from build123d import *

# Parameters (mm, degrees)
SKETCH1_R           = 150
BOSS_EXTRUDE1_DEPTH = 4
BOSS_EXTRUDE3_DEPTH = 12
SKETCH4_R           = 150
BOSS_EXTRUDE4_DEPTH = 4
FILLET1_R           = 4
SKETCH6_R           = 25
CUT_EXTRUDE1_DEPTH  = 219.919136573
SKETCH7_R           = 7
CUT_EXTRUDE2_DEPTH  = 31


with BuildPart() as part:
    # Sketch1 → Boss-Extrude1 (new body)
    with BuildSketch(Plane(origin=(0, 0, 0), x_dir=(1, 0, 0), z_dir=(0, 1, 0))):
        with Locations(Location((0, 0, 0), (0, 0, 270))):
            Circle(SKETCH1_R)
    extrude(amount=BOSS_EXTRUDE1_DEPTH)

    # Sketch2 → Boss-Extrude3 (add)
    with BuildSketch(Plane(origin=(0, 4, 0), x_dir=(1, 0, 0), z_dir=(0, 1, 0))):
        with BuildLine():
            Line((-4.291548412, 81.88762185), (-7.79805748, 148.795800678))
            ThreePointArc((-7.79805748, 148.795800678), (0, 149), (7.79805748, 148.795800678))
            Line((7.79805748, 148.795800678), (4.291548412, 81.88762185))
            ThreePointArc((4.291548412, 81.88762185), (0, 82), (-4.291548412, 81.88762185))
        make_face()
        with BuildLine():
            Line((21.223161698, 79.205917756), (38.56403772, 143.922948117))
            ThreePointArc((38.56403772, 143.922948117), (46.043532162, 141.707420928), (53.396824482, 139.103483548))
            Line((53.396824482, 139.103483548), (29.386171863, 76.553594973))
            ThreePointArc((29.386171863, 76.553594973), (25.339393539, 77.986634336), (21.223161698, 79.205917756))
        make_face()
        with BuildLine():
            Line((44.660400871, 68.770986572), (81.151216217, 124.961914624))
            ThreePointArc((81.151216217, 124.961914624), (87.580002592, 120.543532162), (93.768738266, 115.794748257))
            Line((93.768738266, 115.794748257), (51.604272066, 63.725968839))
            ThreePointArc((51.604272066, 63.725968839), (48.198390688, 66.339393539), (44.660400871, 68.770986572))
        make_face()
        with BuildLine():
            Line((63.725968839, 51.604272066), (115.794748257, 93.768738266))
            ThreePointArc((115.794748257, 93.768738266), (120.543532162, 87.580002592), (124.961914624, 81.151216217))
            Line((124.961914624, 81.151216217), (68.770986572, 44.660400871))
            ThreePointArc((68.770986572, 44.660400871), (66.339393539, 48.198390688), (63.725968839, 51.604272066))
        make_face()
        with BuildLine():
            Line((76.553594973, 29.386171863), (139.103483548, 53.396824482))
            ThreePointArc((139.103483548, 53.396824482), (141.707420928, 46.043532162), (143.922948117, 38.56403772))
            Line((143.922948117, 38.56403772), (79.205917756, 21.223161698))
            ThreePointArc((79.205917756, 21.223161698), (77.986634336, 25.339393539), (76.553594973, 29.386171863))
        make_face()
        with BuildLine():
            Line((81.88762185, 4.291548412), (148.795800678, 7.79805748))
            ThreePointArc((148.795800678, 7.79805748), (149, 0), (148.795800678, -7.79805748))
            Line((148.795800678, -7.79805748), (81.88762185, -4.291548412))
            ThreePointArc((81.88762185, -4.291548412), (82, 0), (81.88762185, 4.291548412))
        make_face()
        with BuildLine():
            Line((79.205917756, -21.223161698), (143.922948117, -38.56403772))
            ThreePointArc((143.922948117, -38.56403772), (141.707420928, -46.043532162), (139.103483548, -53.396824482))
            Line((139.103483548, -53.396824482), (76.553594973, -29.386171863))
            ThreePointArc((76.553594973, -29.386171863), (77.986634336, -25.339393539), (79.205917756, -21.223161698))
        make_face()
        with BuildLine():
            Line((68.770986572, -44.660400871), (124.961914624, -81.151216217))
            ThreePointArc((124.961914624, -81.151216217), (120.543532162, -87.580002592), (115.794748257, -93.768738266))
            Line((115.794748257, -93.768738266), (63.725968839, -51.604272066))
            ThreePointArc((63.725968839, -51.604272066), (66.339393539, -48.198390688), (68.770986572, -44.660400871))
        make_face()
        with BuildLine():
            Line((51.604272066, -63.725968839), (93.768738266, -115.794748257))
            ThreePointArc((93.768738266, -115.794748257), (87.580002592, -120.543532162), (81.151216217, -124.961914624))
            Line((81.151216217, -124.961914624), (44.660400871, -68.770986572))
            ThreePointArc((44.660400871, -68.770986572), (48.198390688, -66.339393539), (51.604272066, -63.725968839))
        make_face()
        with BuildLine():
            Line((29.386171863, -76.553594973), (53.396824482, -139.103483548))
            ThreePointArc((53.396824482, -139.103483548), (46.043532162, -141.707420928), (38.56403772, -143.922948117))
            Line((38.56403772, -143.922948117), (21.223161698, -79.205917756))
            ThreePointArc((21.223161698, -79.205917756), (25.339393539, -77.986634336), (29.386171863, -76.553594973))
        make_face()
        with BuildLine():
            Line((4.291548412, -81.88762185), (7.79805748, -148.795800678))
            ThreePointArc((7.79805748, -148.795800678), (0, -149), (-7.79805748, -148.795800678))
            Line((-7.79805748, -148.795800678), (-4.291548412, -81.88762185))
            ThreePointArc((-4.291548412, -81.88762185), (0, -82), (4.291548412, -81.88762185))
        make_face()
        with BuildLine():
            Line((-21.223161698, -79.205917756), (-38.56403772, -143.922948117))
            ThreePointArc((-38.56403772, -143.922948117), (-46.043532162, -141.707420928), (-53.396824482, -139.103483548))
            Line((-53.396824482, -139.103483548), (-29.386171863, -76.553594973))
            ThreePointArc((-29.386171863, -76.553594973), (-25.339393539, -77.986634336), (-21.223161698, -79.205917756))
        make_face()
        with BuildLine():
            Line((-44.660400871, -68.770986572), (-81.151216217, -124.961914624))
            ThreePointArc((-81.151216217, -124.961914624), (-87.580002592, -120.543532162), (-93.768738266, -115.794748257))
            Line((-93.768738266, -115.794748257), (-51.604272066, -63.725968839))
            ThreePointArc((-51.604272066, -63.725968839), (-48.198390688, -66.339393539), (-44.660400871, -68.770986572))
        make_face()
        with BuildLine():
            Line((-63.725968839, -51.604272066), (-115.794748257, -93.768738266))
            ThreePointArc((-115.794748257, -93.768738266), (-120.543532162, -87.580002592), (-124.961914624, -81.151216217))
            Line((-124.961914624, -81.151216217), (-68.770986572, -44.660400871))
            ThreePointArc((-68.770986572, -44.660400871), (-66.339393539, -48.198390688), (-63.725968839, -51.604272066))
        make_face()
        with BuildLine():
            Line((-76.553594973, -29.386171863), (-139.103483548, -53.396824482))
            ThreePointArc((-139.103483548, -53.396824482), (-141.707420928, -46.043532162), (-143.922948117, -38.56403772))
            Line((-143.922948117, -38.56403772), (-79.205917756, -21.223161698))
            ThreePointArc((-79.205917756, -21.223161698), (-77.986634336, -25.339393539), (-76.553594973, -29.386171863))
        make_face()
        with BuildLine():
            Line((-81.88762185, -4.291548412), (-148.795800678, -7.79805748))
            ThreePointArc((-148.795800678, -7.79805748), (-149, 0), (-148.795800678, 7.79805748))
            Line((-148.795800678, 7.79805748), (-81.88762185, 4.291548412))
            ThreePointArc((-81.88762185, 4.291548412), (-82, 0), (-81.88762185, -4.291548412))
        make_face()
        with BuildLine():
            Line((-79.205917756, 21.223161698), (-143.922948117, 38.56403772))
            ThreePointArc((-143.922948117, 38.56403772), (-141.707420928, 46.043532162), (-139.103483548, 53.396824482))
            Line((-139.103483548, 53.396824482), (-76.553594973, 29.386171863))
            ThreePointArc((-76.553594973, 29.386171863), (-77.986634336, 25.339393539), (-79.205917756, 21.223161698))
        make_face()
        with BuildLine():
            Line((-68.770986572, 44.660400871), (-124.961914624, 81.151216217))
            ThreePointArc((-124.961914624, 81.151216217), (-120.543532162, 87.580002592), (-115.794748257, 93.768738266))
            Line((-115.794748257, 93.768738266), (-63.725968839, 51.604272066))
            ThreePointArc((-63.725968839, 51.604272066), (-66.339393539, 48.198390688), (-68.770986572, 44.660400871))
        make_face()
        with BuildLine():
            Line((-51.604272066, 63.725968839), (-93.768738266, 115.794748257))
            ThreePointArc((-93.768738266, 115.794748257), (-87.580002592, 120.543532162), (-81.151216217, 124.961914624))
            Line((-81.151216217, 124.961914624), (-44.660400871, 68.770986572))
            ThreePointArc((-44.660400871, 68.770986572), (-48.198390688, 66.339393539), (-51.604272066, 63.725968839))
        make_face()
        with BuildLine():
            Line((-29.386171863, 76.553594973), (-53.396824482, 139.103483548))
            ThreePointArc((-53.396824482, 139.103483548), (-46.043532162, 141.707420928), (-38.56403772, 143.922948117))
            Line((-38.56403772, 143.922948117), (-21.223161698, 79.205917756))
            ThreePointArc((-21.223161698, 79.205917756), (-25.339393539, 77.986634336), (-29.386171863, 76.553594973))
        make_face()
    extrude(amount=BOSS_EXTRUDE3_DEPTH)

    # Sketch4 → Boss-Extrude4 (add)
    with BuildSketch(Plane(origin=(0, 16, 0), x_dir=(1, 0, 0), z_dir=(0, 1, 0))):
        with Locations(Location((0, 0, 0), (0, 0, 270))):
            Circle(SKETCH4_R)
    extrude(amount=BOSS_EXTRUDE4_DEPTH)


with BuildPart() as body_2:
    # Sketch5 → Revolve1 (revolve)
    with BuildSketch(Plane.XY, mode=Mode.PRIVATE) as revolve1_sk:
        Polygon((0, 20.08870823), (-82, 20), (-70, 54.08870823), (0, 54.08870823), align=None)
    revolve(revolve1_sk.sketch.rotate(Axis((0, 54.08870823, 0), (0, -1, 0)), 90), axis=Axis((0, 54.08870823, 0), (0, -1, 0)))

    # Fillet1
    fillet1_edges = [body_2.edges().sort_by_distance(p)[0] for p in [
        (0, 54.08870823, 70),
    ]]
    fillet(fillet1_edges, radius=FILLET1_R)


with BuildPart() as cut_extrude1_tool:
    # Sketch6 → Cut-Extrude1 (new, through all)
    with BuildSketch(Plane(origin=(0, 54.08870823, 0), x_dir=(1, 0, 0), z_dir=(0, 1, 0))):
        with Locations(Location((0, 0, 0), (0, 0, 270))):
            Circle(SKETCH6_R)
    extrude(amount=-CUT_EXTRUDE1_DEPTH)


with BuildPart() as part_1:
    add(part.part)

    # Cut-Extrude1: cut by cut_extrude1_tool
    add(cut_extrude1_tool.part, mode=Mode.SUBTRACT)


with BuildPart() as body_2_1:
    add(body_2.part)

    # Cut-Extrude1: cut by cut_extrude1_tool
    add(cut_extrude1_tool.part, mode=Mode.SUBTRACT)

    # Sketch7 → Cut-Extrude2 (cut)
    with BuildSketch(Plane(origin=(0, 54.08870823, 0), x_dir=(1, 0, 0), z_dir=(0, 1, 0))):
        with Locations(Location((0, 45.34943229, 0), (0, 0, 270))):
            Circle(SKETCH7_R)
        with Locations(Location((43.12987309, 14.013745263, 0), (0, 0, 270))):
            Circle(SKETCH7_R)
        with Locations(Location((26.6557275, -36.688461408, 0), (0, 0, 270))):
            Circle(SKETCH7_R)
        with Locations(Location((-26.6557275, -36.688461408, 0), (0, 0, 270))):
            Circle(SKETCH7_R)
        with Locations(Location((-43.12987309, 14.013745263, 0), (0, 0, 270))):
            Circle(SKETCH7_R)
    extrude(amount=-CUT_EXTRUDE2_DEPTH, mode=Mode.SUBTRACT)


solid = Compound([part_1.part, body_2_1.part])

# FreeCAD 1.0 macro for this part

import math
import FreeCAD as App
import Part
import Sketcher
from FreeCAD import Vector
Q = App.Units.Quantity


def edges_at(feature, points):
    """Names of the edges that pass closest to the given points."""
    edges = feature.Shape.Edges
    near = lambda p: min(range(len(edges)), key=lambda i: edges[i].distToShape(Part.Vertex(*p))[0])
    return sorted({f"Edge{near(p) + 1}" for p in points})


def add_polygon(sketch, points):
    """Adds a closed chain of lines whose ends are joined by coincident constraints."""
    first, n = sketch.GeometryCount, len(points)
    for a, b in zip(points, points[1:] + points[:1]):
        sketch.addGeometry(Part.LineSegment(App.Vector(*a, 0), App.Vector(*b, 0)), False)
    for i in range(n):
        sketch.addConstraint(Sketcher.Constraint("Coincident", first + i, 2, first + (i + 1) % n, 1))

doc = App.newDocument("Part")
params = doc.addObject("Spreadsheet::Sheet", "Params")
for row, (alias, value) in enumerate([
    ("sketch1_diameter", "300 mm"),
    ("pad1_length", "4 mm"),
    ("sketch2_radius", "82 mm"),
    ("sketch2_radius2", "149 mm"),
    ("pad2_length", "12 mm"),
    ("sketch3_diameter", "300 mm"),
    ("pad3_length", "4 mm"),
    ("sketch4_width", "70 mm"),
    ("sketch4_height", "34 mm"),
    ("revolution_angle", "360 deg"),
    ("fillet_radius", "4 mm"),
    ("sketch5_diameter", "50 mm"),
    ("pad4_length", "219.919137 mm"),
    ("sketch6_diameter", "14 mm"),
    ("pocket1_length", "31 mm"),
], start=1):
    params.set(f"A{row}", alias)
    params.set(f"B{row}", "=" + value)
    params.setAlias(f"B{row}", alias)

body = doc.addObject("PartDesign::Body", "Body")

sketch1 = body.newObject("Sketcher::SketchObject", "Sketch")
sketch1.AttachmentSupport = (doc.getObject("XZ_Plane"), [""])
sketch1.MapMode = "FlatFace"
sketch1.addGeometry(Part.Circle(Vector(0, 0, 0), Vector(0, 0, 1), 150), False)
sketch1.addConstraint(Sketcher.Constraint("Coincident", 0, 3, -1, 1))
sketch1.addConstraint(Sketcher.Constraint("Diameter", 0, Q("300 mm")))
sketch1.setExpression("Constraints[1]", "Params.sketch1_diameter")
pad1 = body.newObject("PartDesign::Pad", "Pad")
pad1.Profile = sketch1
pad1.setExpression("Length", "Params.pad1_length")
pad1.Reversed = True

sketch2 = body.newObject("Sketcher::SketchObject", "Sketch001")
sketch2.AttachmentSupport = (doc.getObject("XZ_Plane"), [""])
sketch2.MapMode = "FlatFace"
sketch2.AttachmentOffset = App.Placement(Vector(0, 0, -4), App.Rotation())
sketch2.addGeometry(Part.LineSegment(Vector(-8, -149, 0), Vector(-4, -82, 0)), False)
sketch2.addGeometry(Part.ArcOfCircle(Part.Circle(Vector(0, 0, 0), Vector(0, 0, 1), 82), math.radians(-93), math.radians(-87)), False)
sketch2.addGeometry(Part.LineSegment(Vector(4, -82, 0), Vector(8, -149, 0)), False)
sketch2.addGeometry(Part.ArcOfCircle(Part.Circle(Vector(0, 0, 0), Vector(0, 0, 1), 149), math.radians(-93), math.radians(-87)), False)
sketch2.addGeometry(Part.LineSegment(Vector(39, -144, 0), Vector(21, -79, 0)), False)
sketch2.addGeometry(Part.ArcOfCircle(Part.Circle(Vector(0, 0, 0), Vector(0, 0, 1), 82), math.radians(-75), math.radians(-69)), False)
sketch2.addGeometry(Part.LineSegment(Vector(29, -77, 0), Vector(53, -139, 0)), False)
sketch2.addGeometry(Part.ArcOfCircle(Part.Circle(Vector(0, 0, 0), Vector(0, 0, 1), 149), math.radians(-75), math.radians(-69)), False)
sketch2.addGeometry(Part.LineSegment(Vector(81, -125, 0), Vector(45, -69, 0)), False)
sketch2.addGeometry(Part.ArcOfCircle(Part.Circle(Vector(0, 0, 0), Vector(0, 0, 1), 82), math.radians(-57), math.radians(-51)), False)
sketch2.addGeometry(Part.LineSegment(Vector(52, -64, 0), Vector(94, -116, 0)), False)
sketch2.addGeometry(Part.ArcOfCircle(Part.Circle(Vector(0, 0, 0), Vector(0, 0, 1), 149), math.radians(-57), math.radians(-51)), False)
sketch2.addGeometry(Part.LineSegment(Vector(116, -94, 0), Vector(64, -52, 0)), False)
sketch2.addGeometry(Part.ArcOfCircle(Part.Circle(Vector(0, 0, 0), Vector(0, 0, 1), 82), math.radians(-39), math.radians(-33)), False)
sketch2.addGeometry(Part.LineSegment(Vector(69, -45, 0), Vector(125, -81, 0)), False)
sketch2.addGeometry(Part.ArcOfCircle(Part.Circle(Vector(0, 0, 0), Vector(0, 0, 1), 149), math.radians(-39), math.radians(-33)), False)
sketch2.addGeometry(Part.LineSegment(Vector(139, -53, 0), Vector(77, -29, 0)), False)
sketch2.addGeometry(Part.ArcOfCircle(Part.Circle(Vector(0, 0, 0), Vector(0, 0, 1), 82), math.radians(-21), math.radians(-15)), False)
sketch2.addGeometry(Part.LineSegment(Vector(79, -21, 0), Vector(144, -39, 0)), False)
sketch2.addGeometry(Part.ArcOfCircle(Part.Circle(Vector(0, 0, 0), Vector(0, 0, 1), 149), math.radians(-21), math.radians(-15)), False)
sketch2.addGeometry(Part.LineSegment(Vector(149, -8, 0), Vector(82, -4, 0)), False)
sketch2.addGeometry(Part.ArcOfCircle(Part.Circle(Vector(0, 0, 0), Vector(0, 0, 1), 82), math.radians(-3), math.radians(3)), False)
sketch2.addGeometry(Part.LineSegment(Vector(82, 4, 0), Vector(149, 8, 0)), False)
sketch2.addGeometry(Part.ArcOfCircle(Part.Circle(Vector(0, 0, 0), Vector(0, 0, 1), 149), math.radians(-3), math.radians(3)), False)
sketch2.addGeometry(Part.LineSegment(Vector(144, 39, 0), Vector(79, 21, 0)), False)
sketch2.addGeometry(Part.ArcOfCircle(Part.Circle(Vector(0, 0, 0), Vector(0, 0, 1), 82), math.radians(15), math.radians(21)), False)
sketch2.addGeometry(Part.LineSegment(Vector(77, 29, 0), Vector(139, 53, 0)), False)
sketch2.addGeometry(Part.ArcOfCircle(Part.Circle(Vector(0, 0, 0), Vector(0, 0, 1), 149), math.radians(15), math.radians(21)), False)
sketch2.addGeometry(Part.LineSegment(Vector(125, 81, 0), Vector(69, 45, 0)), False)
sketch2.addGeometry(Part.ArcOfCircle(Part.Circle(Vector(0, 0, 0), Vector(0, 0, 1), 82), math.radians(33), math.radians(39)), False)
sketch2.addGeometry(Part.LineSegment(Vector(64, 52, 0), Vector(116, 94, 0)), False)
sketch2.addGeometry(Part.ArcOfCircle(Part.Circle(Vector(0, 0, 0), Vector(0, 0, 1), 149), math.radians(33), math.radians(39)), False)
sketch2.addGeometry(Part.LineSegment(Vector(94, 116, 0), Vector(52, 64, 0)), False)
sketch2.addGeometry(Part.ArcOfCircle(Part.Circle(Vector(0, 0, 0), Vector(0, 0, 1), 82), math.radians(51), math.radians(57)), False)
sketch2.addGeometry(Part.LineSegment(Vector(45, 69, 0), Vector(81, 125, 0)), False)
sketch2.addGeometry(Part.ArcOfCircle(Part.Circle(Vector(0, 0, 0), Vector(0, 0, 1), 149), math.radians(51), math.radians(57)), False)
sketch2.addGeometry(Part.LineSegment(Vector(53, 139, 0), Vector(29, 77, 0)), False)
sketch2.addGeometry(Part.ArcOfCircle(Part.Circle(Vector(0, 0, 0), Vector(0, 0, 1), 82), math.radians(69), math.radians(75)), False)
sketch2.addGeometry(Part.LineSegment(Vector(21, 79, 0), Vector(39, 144, 0)), False)
sketch2.addGeometry(Part.ArcOfCircle(Part.Circle(Vector(0, 0, 0), Vector(0, 0, 1), 149), math.radians(69), math.radians(75)), False)
sketch2.addGeometry(Part.LineSegment(Vector(8, 149, 0), Vector(4, 82, 0)), False)
sketch2.addGeometry(Part.ArcOfCircle(Part.Circle(Vector(0, 0, 0), Vector(0, 0, 1), 82), math.radians(87), math.radians(93)), False)
sketch2.addGeometry(Part.LineSegment(Vector(-4, 82, 0), Vector(-8, 149, 0)), False)
sketch2.addGeometry(Part.ArcOfCircle(Part.Circle(Vector(0, 0, 0), Vector(0, 0, 1), 149), math.radians(87), math.radians(93)), False)
sketch2.addGeometry(Part.LineSegment(Vector(-39, 144, 0), Vector(-21, 79, 0)), False)
sketch2.addGeometry(Part.ArcOfCircle(Part.Circle(Vector(0, 0, 0), Vector(0, 0, 1), 82), math.radians(105), math.radians(111)), False)
sketch2.addGeometry(Part.LineSegment(Vector(-29, 77, 0), Vector(-53, 139, 0)), False)
sketch2.addGeometry(Part.ArcOfCircle(Part.Circle(Vector(0, 0, 0), Vector(0, 0, 1), 149), math.radians(105), math.radians(111)), False)
sketch2.addGeometry(Part.LineSegment(Vector(-81, 125, 0), Vector(-45, 69, 0)), False)
sketch2.addGeometry(Part.ArcOfCircle(Part.Circle(Vector(0, 0, 0), Vector(0, 0, 1), 82), math.radians(123), math.radians(129)), False)
sketch2.addGeometry(Part.LineSegment(Vector(-52, 64, 0), Vector(-94, 116, 0)), False)
sketch2.addGeometry(Part.ArcOfCircle(Part.Circle(Vector(0, 0, 0), Vector(0, 0, 1), 149), math.radians(123), math.radians(129)), False)
sketch2.addGeometry(Part.LineSegment(Vector(-116, 94, 0), Vector(-64, 52, 0)), False)
sketch2.addGeometry(Part.ArcOfCircle(Part.Circle(Vector(0, 0, 0), Vector(0, 0, 1), 82), math.radians(141), math.radians(147)), False)
sketch2.addGeometry(Part.LineSegment(Vector(-69, 45, 0), Vector(-125, 81, 0)), False)
sketch2.addGeometry(Part.ArcOfCircle(Part.Circle(Vector(0, 0, 0), Vector(0, 0, 1), 149), math.radians(141), math.radians(147)), False)
sketch2.addGeometry(Part.LineSegment(Vector(-139, 53, 0), Vector(-77, 29, 0)), False)
sketch2.addGeometry(Part.ArcOfCircle(Part.Circle(Vector(0, 0, 0), Vector(0, 0, 1), 82), math.radians(159), math.radians(165)), False)
sketch2.addGeometry(Part.LineSegment(Vector(-79, 21, 0), Vector(-144, 39, 0)), False)
sketch2.addGeometry(Part.ArcOfCircle(Part.Circle(Vector(0, 0, 0), Vector(0, 0, 1), 149), math.radians(159), math.radians(165)), False)
sketch2.addGeometry(Part.LineSegment(Vector(-149, 8, 0), Vector(-82, 4, 0)), False)
sketch2.addGeometry(Part.ArcOfCircle(Part.Circle(Vector(0, 0, 0), Vector(0, 0, 1), 82), math.radians(177), math.radians(183)), False)
sketch2.addGeometry(Part.LineSegment(Vector(-82, -4, 0), Vector(-149, -8, 0)), False)
sketch2.addGeometry(Part.ArcOfCircle(Part.Circle(Vector(0, 0, 0), Vector(0, 0, 1), 149), math.radians(177), math.radians(183)), False)
sketch2.addGeometry(Part.LineSegment(Vector(-144, -39, 0), Vector(-79, -21, 0)), False)
sketch2.addGeometry(Part.ArcOfCircle(Part.Circle(Vector(0, 0, 0), Vector(0, 0, 1), 82), math.radians(-165), math.radians(-159)), False)
sketch2.addGeometry(Part.LineSegment(Vector(-77, -29, 0), Vector(-139, -53, 0)), False)
sketch2.addGeometry(Part.ArcOfCircle(Part.Circle(Vector(0, 0, 0), Vector(0, 0, 1), 149), math.radians(-165), math.radians(-159)), False)
sketch2.addGeometry(Part.LineSegment(Vector(-125, -81, 0), Vector(-69, -45, 0)), False)
sketch2.addGeometry(Part.ArcOfCircle(Part.Circle(Vector(0, 0, 0), Vector(0, 0, 1), 82), math.radians(-147), math.radians(-141)), False)
sketch2.addGeometry(Part.LineSegment(Vector(-64, -52, 0), Vector(-116, -94, 0)), False)
sketch2.addGeometry(Part.ArcOfCircle(Part.Circle(Vector(0, 0, 0), Vector(0, 0, 1), 149), math.radians(-147), math.radians(-141)), False)
sketch2.addGeometry(Part.LineSegment(Vector(-94, -116, 0), Vector(-52, -64, 0)), False)
sketch2.addGeometry(Part.ArcOfCircle(Part.Circle(Vector(0, 0, 0), Vector(0, 0, 1), 82), math.radians(-129), math.radians(-123)), False)
sketch2.addGeometry(Part.LineSegment(Vector(-45, -69, 0), Vector(-81, -125, 0)), False)
sketch2.addGeometry(Part.ArcOfCircle(Part.Circle(Vector(0, 0, 0), Vector(0, 0, 1), 149), math.radians(-129), math.radians(-123)), False)
sketch2.addGeometry(Part.LineSegment(Vector(-53, -139, 0), Vector(-29, -77, 0)), False)
sketch2.addGeometry(Part.ArcOfCircle(Part.Circle(Vector(0, 0, 0), Vector(0, 0, 1), 82), math.radians(-111), math.radians(-105)), False)
sketch2.addGeometry(Part.LineSegment(Vector(-21, -79, 0), Vector(-39, -144, 0)), False)
sketch2.addGeometry(Part.ArcOfCircle(Part.Circle(Vector(0, 0, 0), Vector(0, 0, 1), 149), math.radians(-111), math.radians(-105)), False)
sketch2.addConstraint(Sketcher.Constraint("Coincident", 0, 2, 1, 1))
sketch2.addConstraint(Sketcher.Constraint("Coincident", 1, 2, 2, 1))
sketch2.addConstraint(Sketcher.Constraint("Coincident", 2, 2, 3, 2))
sketch2.addConstraint(Sketcher.Constraint("Coincident", 3, 1, 0, 1))
sketch2.addConstraint(Sketcher.Constraint("Coincident", 4, 2, 5, 1))
sketch2.addConstraint(Sketcher.Constraint("Coincident", 5, 2, 6, 1))
sketch2.addConstraint(Sketcher.Constraint("Coincident", 6, 2, 7, 2))
sketch2.addConstraint(Sketcher.Constraint("Coincident", 7, 1, 4, 1))
sketch2.addConstraint(Sketcher.Constraint("Coincident", 8, 2, 9, 1))
sketch2.addConstraint(Sketcher.Constraint("Coincident", 9, 2, 10, 1))
sketch2.addConstraint(Sketcher.Constraint("Coincident", 10, 2, 11, 2))
sketch2.addConstraint(Sketcher.Constraint("Coincident", 11, 1, 8, 1))
sketch2.addConstraint(Sketcher.Constraint("Coincident", 12, 2, 13, 1))
sketch2.addConstraint(Sketcher.Constraint("Coincident", 13, 2, 14, 1))
sketch2.addConstraint(Sketcher.Constraint("Coincident", 14, 2, 15, 2))
sketch2.addConstraint(Sketcher.Constraint("Coincident", 15, 1, 12, 1))
sketch2.addConstraint(Sketcher.Constraint("Coincident", 16, 2, 17, 1))
sketch2.addConstraint(Sketcher.Constraint("Coincident", 17, 2, 18, 1))
sketch2.addConstraint(Sketcher.Constraint("Coincident", 18, 2, 19, 2))
sketch2.addConstraint(Sketcher.Constraint("Coincident", 19, 1, 16, 1))
sketch2.addConstraint(Sketcher.Constraint("Coincident", 20, 2, 21, 1))
sketch2.addConstraint(Sketcher.Constraint("Coincident", 21, 2, 22, 1))
sketch2.addConstraint(Sketcher.Constraint("Coincident", 22, 2, 23, 2))
sketch2.addConstraint(Sketcher.Constraint("Coincident", 23, 1, 20, 1))
sketch2.addConstraint(Sketcher.Constraint("Coincident", 24, 2, 25, 1))
sketch2.addConstraint(Sketcher.Constraint("Coincident", 25, 2, 26, 1))
sketch2.addConstraint(Sketcher.Constraint("Coincident", 26, 2, 27, 2))
sketch2.addConstraint(Sketcher.Constraint("Coincident", 27, 1, 24, 1))
sketch2.addConstraint(Sketcher.Constraint("Coincident", 28, 2, 29, 1))
sketch2.addConstraint(Sketcher.Constraint("Coincident", 29, 2, 30, 1))
sketch2.addConstraint(Sketcher.Constraint("Coincident", 30, 2, 31, 2))
sketch2.addConstraint(Sketcher.Constraint("Coincident", 31, 1, 28, 1))
sketch2.addConstraint(Sketcher.Constraint("Coincident", 32, 2, 33, 1))
sketch2.addConstraint(Sketcher.Constraint("Coincident", 33, 2, 34, 1))
sketch2.addConstraint(Sketcher.Constraint("Coincident", 34, 2, 35, 2))
sketch2.addConstraint(Sketcher.Constraint("Coincident", 35, 1, 32, 1))
sketch2.addConstraint(Sketcher.Constraint("Coincident", 36, 2, 37, 1))
sketch2.addConstraint(Sketcher.Constraint("Coincident", 37, 2, 38, 1))
sketch2.addConstraint(Sketcher.Constraint("Coincident", 38, 2, 39, 2))
sketch2.addConstraint(Sketcher.Constraint("Coincident", 39, 1, 36, 1))
sketch2.addConstraint(Sketcher.Constraint("Coincident", 40, 2, 41, 1))
sketch2.addConstraint(Sketcher.Constraint("Coincident", 41, 2, 42, 1))
sketch2.addConstraint(Sketcher.Constraint("Coincident", 42, 2, 43, 2))
sketch2.addConstraint(Sketcher.Constraint("Coincident", 43, 1, 40, 1))
sketch2.addConstraint(Sketcher.Constraint("Coincident", 44, 2, 45, 1))
sketch2.addConstraint(Sketcher.Constraint("Coincident", 45, 2, 46, 1))
sketch2.addConstraint(Sketcher.Constraint("Coincident", 46, 2, 47, 2))
sketch2.addConstraint(Sketcher.Constraint("Coincident", 47, 1, 44, 1))
sketch2.addConstraint(Sketcher.Constraint("Coincident", 48, 2, 49, 1))
sketch2.addConstraint(Sketcher.Constraint("Coincident", 49, 2, 50, 1))
sketch2.addConstraint(Sketcher.Constraint("Coincident", 50, 2, 51, 2))
sketch2.addConstraint(Sketcher.Constraint("Coincident", 51, 1, 48, 1))
sketch2.addConstraint(Sketcher.Constraint("Coincident", 52, 2, 53, 1))
sketch2.addConstraint(Sketcher.Constraint("Coincident", 53, 2, 54, 1))
sketch2.addConstraint(Sketcher.Constraint("Coincident", 54, 2, 55, 2))
sketch2.addConstraint(Sketcher.Constraint("Coincident", 55, 1, 52, 1))
sketch2.addConstraint(Sketcher.Constraint("Coincident", 56, 2, 57, 1))
sketch2.addConstraint(Sketcher.Constraint("Coincident", 57, 2, 58, 1))
sketch2.addConstraint(Sketcher.Constraint("Coincident", 58, 2, 59, 2))
sketch2.addConstraint(Sketcher.Constraint("Coincident", 59, 1, 56, 1))
sketch2.addConstraint(Sketcher.Constraint("Coincident", 60, 2, 61, 1))
sketch2.addConstraint(Sketcher.Constraint("Coincident", 61, 2, 62, 1))
sketch2.addConstraint(Sketcher.Constraint("Coincident", 62, 2, 63, 2))
sketch2.addConstraint(Sketcher.Constraint("Coincident", 63, 1, 60, 1))
sketch2.addConstraint(Sketcher.Constraint("Coincident", 64, 2, 65, 1))
sketch2.addConstraint(Sketcher.Constraint("Coincident", 65, 2, 66, 1))
sketch2.addConstraint(Sketcher.Constraint("Coincident", 66, 2, 67, 2))
sketch2.addConstraint(Sketcher.Constraint("Coincident", 67, 1, 64, 1))
sketch2.addConstraint(Sketcher.Constraint("Coincident", 68, 2, 69, 1))
sketch2.addConstraint(Sketcher.Constraint("Coincident", 69, 2, 70, 1))
sketch2.addConstraint(Sketcher.Constraint("Coincident", 70, 2, 71, 2))
sketch2.addConstraint(Sketcher.Constraint("Coincident", 71, 1, 68, 1))
sketch2.addConstraint(Sketcher.Constraint("Coincident", 72, 2, 73, 1))
sketch2.addConstraint(Sketcher.Constraint("Coincident", 73, 2, 74, 1))
sketch2.addConstraint(Sketcher.Constraint("Coincident", 74, 2, 75, 2))
sketch2.addConstraint(Sketcher.Constraint("Coincident", 75, 1, 72, 1))
sketch2.addConstraint(Sketcher.Constraint("Coincident", 76, 2, 77, 1))
sketch2.addConstraint(Sketcher.Constraint("Coincident", 77, 2, 78, 1))
sketch2.addConstraint(Sketcher.Constraint("Coincident", 78, 2, 79, 2))
sketch2.addConstraint(Sketcher.Constraint("Coincident", 79, 1, 76, 1))
sketch2.addConstraint(Sketcher.Constraint("Coincident", 1, 3, -1, 1))
sketch2.addConstraint(Sketcher.Constraint("Coincident", 3, 3, -1, 1))
sketch2.addConstraint(Sketcher.Constraint("Coincident", 5, 3, -1, 1))
sketch2.addConstraint(Sketcher.Constraint("Coincident", 7, 3, -1, 1))
sketch2.addConstraint(Sketcher.Constraint("Coincident", 9, 3, -1, 1))
sketch2.addConstraint(Sketcher.Constraint("Coincident", 11, 3, -1, 1))
sketch2.addConstraint(Sketcher.Constraint("Coincident", 13, 3, -1, 1))
sketch2.addConstraint(Sketcher.Constraint("Coincident", 15, 3, -1, 1))
sketch2.addConstraint(Sketcher.Constraint("Coincident", 17, 3, -1, 1))
sketch2.addConstraint(Sketcher.Constraint("Coincident", 19, 3, -1, 1))
sketch2.addConstraint(Sketcher.Constraint("Coincident", 21, 3, -1, 1))
sketch2.addConstraint(Sketcher.Constraint("Coincident", 23, 3, -1, 1))
sketch2.addConstraint(Sketcher.Constraint("Coincident", 25, 3, -1, 1))
sketch2.addConstraint(Sketcher.Constraint("Coincident", 27, 3, -1, 1))
sketch2.addConstraint(Sketcher.Constraint("Coincident", 29, 3, -1, 1))
sketch2.addConstraint(Sketcher.Constraint("Coincident", 31, 3, -1, 1))
sketch2.addConstraint(Sketcher.Constraint("Coincident", 33, 3, -1, 1))
sketch2.addConstraint(Sketcher.Constraint("Coincident", 35, 3, -1, 1))
sketch2.addConstraint(Sketcher.Constraint("Coincident", 37, 3, -1, 1))
sketch2.addConstraint(Sketcher.Constraint("Coincident", 39, 3, -1, 1))
sketch2.addConstraint(Sketcher.Constraint("Coincident", 41, 3, -1, 1))
sketch2.addConstraint(Sketcher.Constraint("Coincident", 43, 3, -1, 1))
sketch2.addConstraint(Sketcher.Constraint("Coincident", 45, 3, -1, 1))
sketch2.addConstraint(Sketcher.Constraint("Coincident", 47, 3, -1, 1))
sketch2.addConstraint(Sketcher.Constraint("Coincident", 49, 3, -1, 1))
sketch2.addConstraint(Sketcher.Constraint("Coincident", 51, 3, -1, 1))
sketch2.addConstraint(Sketcher.Constraint("Coincident", 53, 3, -1, 1))
sketch2.addConstraint(Sketcher.Constraint("Coincident", 55, 3, -1, 1))
sketch2.addConstraint(Sketcher.Constraint("Coincident", 57, 3, -1, 1))
sketch2.addConstraint(Sketcher.Constraint("Coincident", 59, 3, -1, 1))
sketch2.addConstraint(Sketcher.Constraint("Coincident", 61, 3, -1, 1))
sketch2.addConstraint(Sketcher.Constraint("Coincident", 63, 3, -1, 1))
sketch2.addConstraint(Sketcher.Constraint("Coincident", 65, 3, -1, 1))
sketch2.addConstraint(Sketcher.Constraint("Coincident", 67, 3, -1, 1))
sketch2.addConstraint(Sketcher.Constraint("Coincident", 69, 3, -1, 1))
sketch2.addConstraint(Sketcher.Constraint("Coincident", 71, 3, -1, 1))
sketch2.addConstraint(Sketcher.Constraint("Coincident", 73, 3, -1, 1))
sketch2.addConstraint(Sketcher.Constraint("Coincident", 75, 3, -1, 1))
sketch2.addConstraint(Sketcher.Constraint("Coincident", 77, 3, -1, 1))
sketch2.addConstraint(Sketcher.Constraint("Coincident", 79, 3, -1, 1))
sketch2.addConstraint(Sketcher.Constraint("Equal", 1, 5))
sketch2.addConstraint(Sketcher.Constraint("Equal", 3, 7))
sketch2.addConstraint(Sketcher.Constraint("Equal", 5, 9))
sketch2.addConstraint(Sketcher.Constraint("Equal", 7, 11))
sketch2.addConstraint(Sketcher.Constraint("Equal", 9, 13))
sketch2.addConstraint(Sketcher.Constraint("Equal", 11, 15))
sketch2.addConstraint(Sketcher.Constraint("Equal", 13, 17))
sketch2.addConstraint(Sketcher.Constraint("Equal", 15, 19))
sketch2.addConstraint(Sketcher.Constraint("Equal", 17, 21))
sketch2.addConstraint(Sketcher.Constraint("Equal", 19, 23))
sketch2.addConstraint(Sketcher.Constraint("Equal", 21, 25))
sketch2.addConstraint(Sketcher.Constraint("Equal", 23, 27))
sketch2.addConstraint(Sketcher.Constraint("Equal", 25, 29))
sketch2.addConstraint(Sketcher.Constraint("Equal", 27, 31))
sketch2.addConstraint(Sketcher.Constraint("Equal", 29, 33))
sketch2.addConstraint(Sketcher.Constraint("Equal", 31, 35))
sketch2.addConstraint(Sketcher.Constraint("Equal", 33, 37))
sketch2.addConstraint(Sketcher.Constraint("Equal", 35, 39))
sketch2.addConstraint(Sketcher.Constraint("Equal", 37, 41))
sketch2.addConstraint(Sketcher.Constraint("Equal", 39, 43))
sketch2.addConstraint(Sketcher.Constraint("Equal", 41, 45))
sketch2.addConstraint(Sketcher.Constraint("Equal", 43, 47))
sketch2.addConstraint(Sketcher.Constraint("Equal", 45, 49))
sketch2.addConstraint(Sketcher.Constraint("Equal", 47, 51))
sketch2.addConstraint(Sketcher.Constraint("Equal", 49, 53))
sketch2.addConstraint(Sketcher.Constraint("Equal", 51, 55))
sketch2.addConstraint(Sketcher.Constraint("Equal", 53, 57))
sketch2.addConstraint(Sketcher.Constraint("Equal", 55, 59))
sketch2.addConstraint(Sketcher.Constraint("Equal", 57, 61))
sketch2.addConstraint(Sketcher.Constraint("Equal", 59, 63))
sketch2.addConstraint(Sketcher.Constraint("Equal", 61, 65))
sketch2.addConstraint(Sketcher.Constraint("Equal", 63, 67))
sketch2.addConstraint(Sketcher.Constraint("Equal", 65, 69))
sketch2.addConstraint(Sketcher.Constraint("Equal", 67, 71))
sketch2.addConstraint(Sketcher.Constraint("Equal", 69, 73))
sketch2.addConstraint(Sketcher.Constraint("Equal", 71, 75))
sketch2.addConstraint(Sketcher.Constraint("Equal", 73, 77))
sketch2.addConstraint(Sketcher.Constraint("Equal", 75, 79))
sketch2.addConstraint(Sketcher.Constraint("Perpendicular", 0, 20))
sketch2.addConstraint(Sketcher.Constraint("Perpendicular", 2, 22))
sketch2.addConstraint(Sketcher.Constraint("Perpendicular", 4, 24))
sketch2.addConstraint(Sketcher.Constraint("Perpendicular", 6, 26))
sketch2.addConstraint(Sketcher.Constraint("Perpendicular", 8, 28))
sketch2.addConstraint(Sketcher.Constraint("Perpendicular", 10, 30))
sketch2.addConstraint(Sketcher.Constraint("Perpendicular", 12, 32))
sketch2.addConstraint(Sketcher.Constraint("Perpendicular", 14, 34))
sketch2.addConstraint(Sketcher.Constraint("Perpendicular", 16, 36))
sketch2.addConstraint(Sketcher.Constraint("Perpendicular", 18, 38))
sketch2.addConstraint(Sketcher.Constraint("Perpendicular", 20, 40))
sketch2.addConstraint(Sketcher.Constraint("Perpendicular", 22, 42))
sketch2.addConstraint(Sketcher.Constraint("Perpendicular", 24, 44))
sketch2.addConstraint(Sketcher.Constraint("Perpendicular", 26, 46))
sketch2.addConstraint(Sketcher.Constraint("Perpendicular", 28, 48))
sketch2.addConstraint(Sketcher.Constraint("Perpendicular", 30, 50))
sketch2.addConstraint(Sketcher.Constraint("Perpendicular", 32, 52))
sketch2.addConstraint(Sketcher.Constraint("Perpendicular", 34, 54))
sketch2.addConstraint(Sketcher.Constraint("Perpendicular", 36, 56))
sketch2.addConstraint(Sketcher.Constraint("Perpendicular", 38, 58))
sketch2.addConstraint(Sketcher.Constraint("Perpendicular", 40, 60))
sketch2.addConstraint(Sketcher.Constraint("Perpendicular", 42, 62))
sketch2.addConstraint(Sketcher.Constraint("Perpendicular", 44, 64))
sketch2.addConstraint(Sketcher.Constraint("Perpendicular", 46, 66))
sketch2.addConstraint(Sketcher.Constraint("Perpendicular", 48, 68))
sketch2.addConstraint(Sketcher.Constraint("Perpendicular", 50, 70))
sketch2.addConstraint(Sketcher.Constraint("Perpendicular", 52, 72))
sketch2.addConstraint(Sketcher.Constraint("Perpendicular", 54, 74))
sketch2.addConstraint(Sketcher.Constraint("Perpendicular", 56, 76))
sketch2.addConstraint(Sketcher.Constraint("Perpendicular", 58, 78))
sketch2.addConstraint(Sketcher.Constraint("Horizontal", 0, 2, 1, 2))
sketch2.addConstraint(Sketcher.Constraint("Horizontal", 2, 2, 3, 1))
sketch2.addConstraint(Sketcher.Constraint("Horizontal", 40, 2, 41, 2))
sketch2.addConstraint(Sketcher.Constraint("Horizontal", 37, 2, 44, 2))
sketch2.addConstraint(Sketcher.Constraint("Horizontal", 36, 2, 45, 2))
sketch2.addConstraint(Sketcher.Constraint("Horizontal", 39, 1, 46, 2))
sketch2.addConstraint(Sketcher.Constraint("Horizontal", 38, 2, 47, 1))
sketch2.addConstraint(Sketcher.Constraint("Horizontal", 33, 2, 48, 2))
sketch2.addConstraint(Sketcher.Constraint("Horizontal", 32, 2, 49, 2))
sketch2.addConstraint(Sketcher.Constraint("Horizontal", 35, 1, 50, 2))
sketch2.addConstraint(Sketcher.Constraint("Horizontal", 34, 2, 51, 1))
sketch2.addConstraint(Sketcher.Constraint("Horizontal", 29, 2, 52, 2))
sketch2.addConstraint(Sketcher.Constraint("Horizontal", 28, 2, 53, 2))
sketch2.addConstraint(Sketcher.Constraint("Horizontal", 25, 2, 56, 2))
sketch2.addConstraint(Sketcher.Constraint("Horizontal", 24, 2, 57, 2))
sketch2.addConstraint(Sketcher.Constraint("Horizontal", 21, 2, 60, 2))
sketch2.addConstraint(Sketcher.Constraint("Horizontal", 20, 2, 61, 2))
sketch2.addConstraint(Sketcher.Constraint("Horizontal", 17, 2, 64, 2))
sketch2.addConstraint(Sketcher.Constraint("Horizontal", 16, 2, 65, 2))
sketch2.addConstraint(Sketcher.Constraint("Horizontal", 13, 2, 68, 2))
sketch2.addConstraint(Sketcher.Constraint("Horizontal", 12, 2, 69, 2))
sketch2.addConstraint(Sketcher.Constraint("Horizontal", 9, 2, 72, 2))
sketch2.addConstraint(Sketcher.Constraint("Horizontal", 8, 2, 73, 2))
sketch2.addConstraint(Sketcher.Constraint("Horizontal", 5, 2, 76, 2))
sketch2.addConstraint(Sketcher.Constraint("Horizontal", 4, 2, 77, 2))
sketch2.addConstraint(Sketcher.Constraint("Vertical", 20, 2, 21, 2))
sketch2.addConstraint(Sketcher.Constraint("Vertical", 17, 2, 24, 2))
sketch2.addConstraint(Sketcher.Constraint("Vertical", 16, 2, 25, 2))
sketch2.addConstraint(Sketcher.Constraint("Vertical", 13, 2, 28, 2))
sketch2.addConstraint(Sketcher.Constraint("Vertical", 12, 2, 29, 2))
sketch2.addConstraint(Sketcher.Constraint("Vertical", 9, 2, 32, 2))
sketch2.addConstraint(Sketcher.Constraint("Vertical", 8, 2, 33, 2))
sketch2.addConstraint(Sketcher.Constraint("Vertical", 5, 2, 36, 2))
sketch2.addConstraint(Sketcher.Constraint("Vertical", 4, 2, 37, 2))
sketch2.addConstraint(Sketcher.Constraint("Vertical", 1, 2, 40, 2))
sketch2.addConstraint(Sketcher.Constraint("Radius", 1, Q("82 mm")))
sketch2.addConstraint(Sketcher.Constraint("Radius", 3, Q("149 mm")))
sketch2.addConstraint(Sketcher.Constraint("Angle", 0, Q("87 deg")))
sketch2.addConstraint(Sketcher.Constraint("Angle", 4, Q("105 deg")))
sketch2.addConstraint(Sketcher.Constraint("Angle", 6, Q("-69 deg")))
sketch2.addConstraint(Sketcher.Constraint("Angle", 8, Q("123 deg")))
sketch2.addConstraint(Sketcher.Constraint("Angle", 10, Q("-51 deg")))
sketch2.addConstraint(Sketcher.Constraint("DistanceY", 2, 2, -1, 1, Q("148.795801 mm")))
sketch2.addConstraint(Sketcher.Constraint("DistanceX", -1, 1, 8, 2, Q("44.660401 mm")))
sketch2.addConstraint(Sketcher.Constraint("DistanceY", 13, 2, -1, 1, Q("44.660401 mm")))
sketch2.addConstraint(Sketcher.Constraint("DistanceX", -1, 1, 22, 2, Q("148.795801 mm")))
sketch2.addConstraint(Sketcher.Constraint("DistanceX", -1, 1, 4, 2, Q("21.223162 mm")))
sketch2.addConstraint(Sketcher.Constraint("DistanceX", -1, 1, 5, 2, Q("29.386172 mm")))
sketch2.addConstraint(Sketcher.Constraint("DistanceY", 9, 2, -1, 1, Q("63.725969 mm")))
sketch2.addConstraint(Sketcher.Constraint("DistanceX", -1, 1, 12, 2, Q("63.725969 mm")))
sketch2.addConstraint(Sketcher.Constraint("DistanceY", 16, 2, -1, 1, Q("29.386172 mm")))
sketch2.addConstraint(Sketcher.Constraint("DistanceY", 17, 2, -1, 1, Q("21.223162 mm")))
sketch2.setExpression("Constraints[223]", "Params.sketch2_radius")
sketch2.setExpression("Constraints[224]", "Params.sketch2_radius2")
pad2 = body.newObject("PartDesign::Pad", "Pad001")
pad2.Profile = sketch2
pad2.setExpression("Length", "Params.pad2_length")
pad2.Reversed = True

sketch3 = body.newObject("Sketcher::SketchObject", "Sketch002")
sketch3.AttachmentSupport = (doc.getObject("XZ_Plane"), [""])
sketch3.MapMode = "FlatFace"
sketch3.AttachmentOffset = App.Placement(Vector(0, 0, -16), App.Rotation())
sketch3.addGeometry(Part.Circle(Vector(0, 0, 0), Vector(0, 0, 1), 150), False)
sketch3.addConstraint(Sketcher.Constraint("Coincident", 0, 3, -1, 1))
sketch3.addConstraint(Sketcher.Constraint("Diameter", 0, Q("300 mm")))
sketch3.setExpression("Constraints[1]", "Params.sketch3_diameter")
pad3 = body.newObject("PartDesign::Pad", "Pad002")
pad3.Profile = sketch3
pad3.setExpression("Length", "Params.pad3_length")
pad3.Reversed = True
body2 = doc.addObject("PartDesign::Body", "Body001")

sketch4 = body2.newObject("Sketcher::SketchObject", "Sketch003")
sketch4.AttachmentSupport = (doc.getObject("XY_Plane001"), [""])
sketch4.MapMode = "FlatFace"
add_polygon(sketch4, [(-82, 20), (0, 20), (0, 54), (-70, 54)])
sketch4.addConstraint(Sketcher.Constraint("Vertical", 1))
sketch4.addConstraint(Sketcher.Constraint("Horizontal", 2))
sketch4.addConstraint(Sketcher.Constraint("PointOnObject", 0, 2, -2))
sketch4.addConstraint(Sketcher.Constraint("DistanceX", 2, 2, 2, 1, Q("70 mm")))
sketch4.addConstraint(Sketcher.Constraint("DistanceY", 1, 1, 1, 2, Q("34 mm")))
sketch4.addConstraint(Sketcher.Constraint("DistanceX", 3, 2, -1, 1, Q("82 mm")))
sketch4.addConstraint(Sketcher.Constraint("DistanceY", -1, 1, 3, 2, Q("20 mm")))
sketch4.addConstraint(Sketcher.Constraint("DistanceY", -1, 1, 0, 2, Q("20.088708 mm")))
sketch4.setExpression("Constraints[7]", "Params.sketch4_width")
sketch4.setExpression("Constraints[8]", "Params.sketch4_height")
revolution = body2.newObject("PartDesign::Revolution", "Revolution")
revolution.Profile = sketch4
revolution.ReferenceAxis = (sketch4, ["V_Axis"])
revolution.setExpression("Angle", "Params.revolution_angle")
doc.recompute()

fillet = body2.newObject("PartDesign::Fillet", "Fillet")
fillet.Base = (revolution, edges_at(revolution, [(0, 54.089, 70)]))
fillet.setExpression("Radius", "Params.fillet_radius")
body3 = doc.addObject("PartDesign::Body", "Body002")

sketch5 = body3.newObject("Sketcher::SketchObject", "Sketch004")
sketch5.AttachmentSupport = (doc.getObject("XZ_Plane002"), [""])
sketch5.MapMode = "FlatFace"
sketch5.AttachmentOffset = App.Placement(Vector(0, 0, -54.088708), App.Rotation())
sketch5.addGeometry(Part.Circle(Vector(0, 0, 0), Vector(0, 0, 1), 25), False)
sketch5.addConstraint(Sketcher.Constraint("Coincident", 0, 3, -1, 1))
sketch5.addConstraint(Sketcher.Constraint("Diameter", 0, Q("50 mm")))
sketch5.setExpression("Constraints[1]", "Params.sketch5_diameter")
pad4 = body3.newObject("PartDesign::Pad", "Pad003")
pad4.Profile = sketch5
pad4.setExpression("Length", "Params.pad4_length")
doc.recompute()

body4 = doc.addObject("PartDesign::Body", "Body003")
body4.BaseFeature = body3
boolean = body.newObject("PartDesign::Boolean", "Boolean")
boolean.Type = "Cut"
boolean.addObjects([body4])
doc.recompute()

boolean2 = body2.newObject("PartDesign::Boolean", "Boolean001")
boolean2.Type = "Cut"
boolean2.addObjects([body3])

sketch6 = body2.newObject("Sketcher::SketchObject", "Sketch005")
sketch6.AttachmentSupport = (doc.getObject("XZ_Plane001"), [""])
sketch6.MapMode = "FlatFace"
sketch6.AttachmentOffset = App.Placement(Vector(0, 0, -54.088708), App.Rotation())
sketch6.addGeometry(Part.Circle(Vector(0, -45, 0), Vector(0, 0, 1), 7), False)
sketch6.addGeometry(Part.Circle(Vector(43, -14, 0), Vector(0, 0, 1), 7), False)
sketch6.addGeometry(Part.Circle(Vector(27, 37, 0), Vector(0, 0, 1), 7), False)
sketch6.addGeometry(Part.Circle(Vector(-27, 37, 0), Vector(0, 0, 1), 7), False)
sketch6.addGeometry(Part.Circle(Vector(-43, -14, 0), Vector(0, 0, 1), 7), False)
sketch6.addConstraint(Sketcher.Constraint("Equal", 0, 1))
sketch6.addConstraint(Sketcher.Constraint("Equal", 1, 2))
sketch6.addConstraint(Sketcher.Constraint("Equal", 2, 3))
sketch6.addConstraint(Sketcher.Constraint("Equal", 3, 4))
sketch6.addConstraint(Sketcher.Constraint("Symmetric", 2, 3, 3, 3, -2))
sketch6.addConstraint(Sketcher.Constraint("Symmetric", 1, 3, 4, 3, -2))
sketch6.addConstraint(Sketcher.Constraint("PointOnObject", 0, 3, -2))
sketch6.addConstraint(Sketcher.Constraint("Diameter", 0, Q("14 mm")))
sketch6.addConstraint(Sketcher.Constraint("DistanceX", 3, 3, 1, 3, Q("69.785601 mm")))
sketch6.addConstraint(Sketcher.Constraint("DistanceY", -1, 1, 2, 3, Q("36.688461 mm")))
sketch6.addConstraint(Sketcher.Constraint("DistanceY", 0, 3, -1, 1, Q("45.349432 mm")))
sketch6.addConstraint(Sketcher.Constraint("DistanceX", -1, 1, 1, 3, Q("43.129873 mm")))
sketch6.addConstraint(Sketcher.Constraint("DistanceY", 1, 3, -1, 1, Q("14.013745 mm")))
sketch6.setExpression("Constraints[7]", "Params.sketch6_diameter")
pocket1 = body2.newObject("PartDesign::Pocket", "Pocket")
pocket1.Profile = sketch6
pocket1.setExpression("Length", "Params.pocket1_length")
pocket1.Reversed = True

doc.recompute()
